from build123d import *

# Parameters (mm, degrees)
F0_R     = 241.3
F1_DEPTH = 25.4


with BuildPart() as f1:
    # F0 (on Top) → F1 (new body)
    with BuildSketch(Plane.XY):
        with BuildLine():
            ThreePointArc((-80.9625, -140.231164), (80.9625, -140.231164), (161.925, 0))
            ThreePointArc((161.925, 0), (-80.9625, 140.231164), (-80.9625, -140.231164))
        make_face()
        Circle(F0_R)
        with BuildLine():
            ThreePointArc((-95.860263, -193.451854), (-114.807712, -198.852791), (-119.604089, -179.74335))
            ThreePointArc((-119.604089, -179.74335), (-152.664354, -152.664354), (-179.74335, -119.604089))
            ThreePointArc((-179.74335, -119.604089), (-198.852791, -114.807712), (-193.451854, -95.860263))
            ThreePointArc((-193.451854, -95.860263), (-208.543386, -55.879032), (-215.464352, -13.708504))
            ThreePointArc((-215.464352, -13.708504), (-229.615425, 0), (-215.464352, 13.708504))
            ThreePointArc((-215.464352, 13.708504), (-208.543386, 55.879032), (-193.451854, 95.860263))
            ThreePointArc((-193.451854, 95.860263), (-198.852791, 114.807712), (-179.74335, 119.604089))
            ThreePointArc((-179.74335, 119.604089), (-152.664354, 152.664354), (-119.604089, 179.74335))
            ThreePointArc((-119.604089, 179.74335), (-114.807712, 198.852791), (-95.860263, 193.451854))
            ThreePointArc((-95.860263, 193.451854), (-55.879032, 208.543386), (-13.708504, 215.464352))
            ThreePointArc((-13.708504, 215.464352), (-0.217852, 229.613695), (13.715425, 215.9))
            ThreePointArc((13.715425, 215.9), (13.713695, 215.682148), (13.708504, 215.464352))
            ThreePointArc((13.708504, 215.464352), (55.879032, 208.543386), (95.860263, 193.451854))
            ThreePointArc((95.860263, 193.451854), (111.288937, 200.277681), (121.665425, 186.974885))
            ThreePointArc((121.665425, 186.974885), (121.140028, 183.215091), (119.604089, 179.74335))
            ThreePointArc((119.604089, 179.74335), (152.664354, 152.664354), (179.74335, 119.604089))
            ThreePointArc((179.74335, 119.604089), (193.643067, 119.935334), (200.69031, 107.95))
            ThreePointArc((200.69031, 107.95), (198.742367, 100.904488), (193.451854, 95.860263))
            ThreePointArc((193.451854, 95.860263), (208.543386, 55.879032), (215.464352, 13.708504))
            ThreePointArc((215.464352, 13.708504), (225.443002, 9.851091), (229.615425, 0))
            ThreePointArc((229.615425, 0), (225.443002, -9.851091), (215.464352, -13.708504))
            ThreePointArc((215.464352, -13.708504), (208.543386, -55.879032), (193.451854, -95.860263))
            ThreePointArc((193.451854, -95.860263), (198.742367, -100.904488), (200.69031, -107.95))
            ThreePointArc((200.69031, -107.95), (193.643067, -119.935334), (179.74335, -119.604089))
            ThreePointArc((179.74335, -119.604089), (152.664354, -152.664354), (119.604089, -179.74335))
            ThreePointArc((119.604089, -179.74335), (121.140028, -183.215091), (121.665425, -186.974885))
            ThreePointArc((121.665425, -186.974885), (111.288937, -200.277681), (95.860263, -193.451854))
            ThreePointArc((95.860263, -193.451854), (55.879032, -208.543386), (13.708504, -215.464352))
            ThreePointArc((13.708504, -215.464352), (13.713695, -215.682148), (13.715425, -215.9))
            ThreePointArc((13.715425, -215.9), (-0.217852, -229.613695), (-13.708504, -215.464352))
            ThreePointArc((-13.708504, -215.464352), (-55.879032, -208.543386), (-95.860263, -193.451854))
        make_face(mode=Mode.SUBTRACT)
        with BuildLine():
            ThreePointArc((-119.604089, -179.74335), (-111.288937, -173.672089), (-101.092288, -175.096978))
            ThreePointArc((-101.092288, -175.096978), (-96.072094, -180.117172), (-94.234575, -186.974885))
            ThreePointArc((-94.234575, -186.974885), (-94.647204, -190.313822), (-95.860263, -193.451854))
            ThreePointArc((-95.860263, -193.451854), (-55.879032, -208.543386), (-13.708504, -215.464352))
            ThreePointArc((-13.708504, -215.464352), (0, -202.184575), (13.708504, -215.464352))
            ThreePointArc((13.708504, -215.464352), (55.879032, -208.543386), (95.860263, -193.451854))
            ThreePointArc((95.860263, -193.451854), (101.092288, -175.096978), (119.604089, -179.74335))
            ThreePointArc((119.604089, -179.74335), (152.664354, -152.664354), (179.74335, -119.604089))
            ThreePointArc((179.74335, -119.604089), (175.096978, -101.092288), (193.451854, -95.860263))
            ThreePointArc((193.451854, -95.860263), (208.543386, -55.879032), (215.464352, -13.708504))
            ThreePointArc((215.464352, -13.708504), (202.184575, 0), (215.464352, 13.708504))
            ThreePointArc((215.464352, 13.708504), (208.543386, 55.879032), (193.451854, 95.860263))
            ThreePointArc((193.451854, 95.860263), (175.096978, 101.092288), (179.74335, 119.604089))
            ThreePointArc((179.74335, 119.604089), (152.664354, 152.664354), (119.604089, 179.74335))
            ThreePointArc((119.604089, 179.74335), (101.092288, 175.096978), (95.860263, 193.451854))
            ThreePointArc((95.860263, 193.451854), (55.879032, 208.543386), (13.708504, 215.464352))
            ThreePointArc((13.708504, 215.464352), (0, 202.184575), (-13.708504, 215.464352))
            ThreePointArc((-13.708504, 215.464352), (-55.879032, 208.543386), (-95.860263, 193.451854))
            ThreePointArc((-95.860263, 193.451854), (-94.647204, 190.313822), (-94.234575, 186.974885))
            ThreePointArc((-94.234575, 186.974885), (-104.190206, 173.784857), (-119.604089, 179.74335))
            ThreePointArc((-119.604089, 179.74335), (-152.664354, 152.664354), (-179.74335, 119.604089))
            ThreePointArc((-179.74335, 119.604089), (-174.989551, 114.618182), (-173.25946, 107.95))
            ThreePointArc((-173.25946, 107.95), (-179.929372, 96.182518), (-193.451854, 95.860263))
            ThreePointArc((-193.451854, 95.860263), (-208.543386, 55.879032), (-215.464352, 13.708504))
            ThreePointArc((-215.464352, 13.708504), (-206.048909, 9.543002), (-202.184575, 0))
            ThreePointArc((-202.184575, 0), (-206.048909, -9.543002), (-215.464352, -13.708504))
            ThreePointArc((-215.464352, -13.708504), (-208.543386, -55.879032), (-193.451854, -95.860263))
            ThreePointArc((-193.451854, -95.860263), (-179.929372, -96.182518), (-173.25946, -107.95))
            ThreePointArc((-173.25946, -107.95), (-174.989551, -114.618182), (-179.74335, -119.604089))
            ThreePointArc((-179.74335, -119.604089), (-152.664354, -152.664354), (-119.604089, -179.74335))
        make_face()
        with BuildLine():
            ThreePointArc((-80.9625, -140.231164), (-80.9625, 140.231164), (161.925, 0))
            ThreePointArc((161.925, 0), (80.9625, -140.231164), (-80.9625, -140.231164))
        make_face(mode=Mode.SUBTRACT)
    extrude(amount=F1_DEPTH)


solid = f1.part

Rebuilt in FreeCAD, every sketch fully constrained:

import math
import FreeCAD as App
import Part
import Sketcher

V = App.Vector
Q = App.Units.Quantity

doc = App.newDocument("Part")
body = doc.addObject("PartDesign::Body", "Body")

sketch1 = body.newObject("Sketcher::SketchObject", "Sketch")
sketch1.AttachmentSupport = (doc.getObject("XY_Plane"), [""])
sketch1.MapMode = "FlatFace"
sketch1.addGeometry([
    Part.Circle(V(0, 0, 0), V(0, 0, 1), 241.3),
    Part.ArcOfCircle(Part.Circle(V(-107.95, -186.97, 0), V(0, 0, 1), 13.72), math.radians(148), math.radians(332)),
    Part.ArcOfCircle(Part.Circle(V(-107.95, -186.97, 0), V(0, 0, 1), 13.72), math.radians(60), math.radians(148)),
    Part.ArcOfCircle(Part.Circle(V(-107.95, -186.97, 0), V(0, 0, 1), 13.72), math.radians(0), math.radians(60)),
    Part.ArcOfCircle(Part.Circle(V(-107.95, -186.97, 0), V(0, 0, 1), 13.72), math.radians(-28), math.radians(0)),
    Part.ArcOfCircle(Part.Circle(V(-186.97, -107.95, 0), V(0, 0, 1), 13.72), math.radians(118), math.radians(302)),
    Part.ArcOfCircle(Part.Circle(V(-186.97, -107.95, 0), V(0, 0, 1), 13.72), math.radians(0), math.radians(118)),
    Part.ArcOfCircle(Part.Circle(V(-186.97, -107.95, 0), V(0, 0, 1), 13.72), math.radians(-58), math.radians(0)),
    Part.ArcOfCircle(Part.Circle(V(0, 0, 0), V(0, 0, 1), 161.93), math.radians(-120), math.radians(0)),
    Part.ArcOfCircle(Part.Circle(V(0, 0, 0), V(0, 0, 1), 161.93), math.radians(0), math.radians(240)),
    Part.ArcOfCircle(Part.Circle(V(0, -215.9, 0), V(0, 0, 1), 13.72), math.radians(178), math.radians(360)),
    Part.ArcOfCircle(Part.Circle(V(0, -215.9, 0), V(0, 0, 1), 13.72), math.radians(2), math.radians(178)),
    Part.ArcOfCircle(Part.Circle(V(0, -215.9, 0), V(0, 0, 1), 13.71), math.radians(0), math.radians(1.82)),
    Part.ArcOfCircle(Part.Circle(V(107.95, -186.97, 0), V(0, 0, 1), 13.72), math.radians(-152), math.radians(0)),
    Part.ArcOfCircle(Part.Circle(V(107.95, -186.97, 0), V(0, 0, 1), 13.72), math.radians(32), math.radians(208)),
    Part.ArcOfCircle(Part.Circle(V(107.95, -186.97, 0), V(0, 0, 1), 13.72), math.radians(0), math.radians(32)),
    Part.ArcOfCircle(Part.Circle(V(186.97, -107.95, 0), V(0, 0, 1), 13.72), math.radians(-122), math.radians(0)),
    Part.ArcOfCircle(Part.Circle(V(186.97, -107.95, 0), V(0, 0, 1), 13.72), math.radians(62), math.radians(238)),
    Part.ArcOfCircle(Part.Circle(V(186.97, -107.95, 0), V(0, 0, 1), 13.72), math.radians(0), math.radians(62)),
    Part.ArcOfCircle(Part.Circle(V(-215.9, 0, 0), V(0, 0, 1), 13.72), math.radians(88), math.radians(272)),
    Part.ArcOfCircle(Part.Circle(V(-215.9, 0, 0), V(0, 0, 1), 13.72), math.radians(0), math.radians(88)),
    Part.ArcOfCircle(Part.Circle(V(-215.9, 0, 0), V(0, 0, 1), 13.72), math.radians(-88), math.radians(0)),
    Part.ArcOfCircle(Part.Circle(V(-186.97, 107.95, 0), V(0, 0, 1), 13.72), math.radians(58), math.radians(242)),
    Part.ArcOfCircle(Part.Circle(V(-186.97, 107.95, 0), V(0, 0, 1), 13.72), math.radians(0), math.radians(58)),
    Part.ArcOfCircle(Part.Circle(V(-186.97, 107.95, 0), V(0, 0, 1), 13.72), math.radians(-118), math.radians(0)),
    Part.ArcOfCircle(Part.Circle(V(-107.95, 186.97, 0), V(0, 0, 1), 13.72), math.radians(28), math.radians(212)),
    Part.ArcOfCircle(Part.Circle(V(-107.95, 186.97, 0), V(0, 0, 1), 13.72), math.radians(0), math.radians(28)),
    Part.ArcOfCircle(Part.Circle(V(-107.95, 186.97, 0), V(0, 0, 1), 13.72), math.radians(-148), math.radians(0)),
    Part.ArcOfCircle(Part.Circle(V(215.9, 0, 0), V(0, 0, 1), 13.72), math.radians(-92), math.radians(0)),
    Part.ArcOfCircle(Part.Circle(V(215.9, 0, 0), V(0, 0, 1), 13.72), math.radians(92), math.radians(268)),
    Part.ArcOfCircle(Part.Circle(V(215.9, 0, 0), V(0, 0, 1), 13.72), math.radians(0), math.radians(92)),
    Part.ArcOfCircle(Part.Circle(V(186.97, 107.95, 0), V(0, 0, 1), 13.72), math.radians(-62), math.radians(0)),
    Part.ArcOfCircle(Part.Circle(V(186.97, 107.95, 0), V(0, 0, 1), 13.72), math.radians(122), math.radians(298)),
    Part.ArcOfCircle(Part.Circle(V(186.97, 107.95, 0), V(0, 0, 1), 13.72), math.radians(0), math.radians(122)),
    Part.ArcOfCircle(Part.Circle(V(0, 215.9, 0), V(0, 0, 1), 13.71), math.radians(-1.82), math.radians(0)),
    Part.ArcOfCircle(Part.Circle(V(0, 215.9, 0), V(0, 0, 1), 13.72), math.radians(-178), math.radians(-2)),
    Part.ArcOfCircle(Part.Circle(V(0, 215.9, 0), V(0, 0, 1), 13.72), math.radians(0), math.radians(182)),
    Part.ArcOfCircle(Part.Circle(V(107.95, 186.97, 0), V(0, 0, 1), 13.72), math.radians(-32), math.radians(0)),
    Part.ArcOfCircle(Part.Circle(V(107.95, 186.97, 0), V(0, 0, 1), 13.72), math.radians(152), math.radians(328)),
    Part.ArcOfCircle(Part.Circle(V(107.95, 186.97, 0), V(0, 0, 1), 13.72), math.radians(0), math.radians(152)),
], False)
sketch1.addConstraint([
    Sketcher.Constraint("Tangent", 1, 1, 2, 2),
    Sketcher.Constraint("Tangent", 2, 1, 3, 2),
    Sketcher.Constraint("Tangent", 3, 1, 4, 2),
    Sketcher.Constraint("Tangent", 4, 1, 1, 2),
    Sketcher.Constraint("Tangent", 5, 1, 6, 2),
    Sketcher.Constraint("Tangent", 6, 1, 7, 2),
    Sketcher.Constraint("Tangent", 7, 1, 5, 2),
    Sketcher.Constraint("Tangent", 8, 1, 9, 2),
    Sketcher.Constraint("Coincident", 9, 1, 8, 2),
    Sketcher.Constraint("Tangent", 10, 1, 11, 2),
    Sketcher.Constraint("Coincident", 11, 1, 12, 2),
    Sketcher.Constraint("Coincident", 12, 1, 10, 2),
    Sketcher.Constraint("Tangent", 13, 1, 14, 2),
    Sketcher.Constraint("Tangent", 14, 1, 15, 2),
    Sketcher.Constraint("Tangent", 15, 1, 13, 2),
    Sketcher.Constraint("Tangent", 16, 1, 17, 2),
    Sketcher.Constraint("Tangent", 17, 1, 18, 2),
    Sketcher.Constraint("Tangent", 18, 1, 16, 2),
    Sketcher.Constraint("Tangent", 19, 1, 20, 2),
    Sketcher.Constraint("Tangent", 20, 1, 21, 2),
    Sketcher.Constraint("Tangent", 21, 1, 19, 2),
    Sketcher.Constraint("Tangent", 22, 1, 23, 2),
    Sketcher.Constraint("Tangent", 23, 1, 24, 2),
    Sketcher.Constraint("Tangent", 24, 1, 22, 2),
    Sketcher.Constraint("Tangent", 25, 1, 26, 2),
    Sketcher.Constraint("Tangent", 26, 1, 27, 2),
    Sketcher.Constraint("Tangent", 27, 1, 25, 2),
    Sketcher.Constraint("Tangent", 28, 1, 29, 2),
    Sketcher.Constraint("Tangent", 29, 1, 30, 2),
    Sketcher.Constraint("Tangent", 30, 1, 28, 2),
    Sketcher.Constraint("Tangent", 31, 1, 32, 2),
    Sketcher.Constraint("Tangent", 32, 1, 33, 2),
    Sketcher.Constraint("Tangent", 33, 1, 31, 2),
    Sketcher.Constraint("Coincident", 34, 1, 35, 2),
    Sketcher.Constraint("Tangent", 35, 1, 36, 2),
    Sketcher.Constraint("Coincident", 36, 1, 34, 2),
    Sketcher.Constraint("Tangent", 37, 1, 38, 2),
    Sketcher.Constraint("Tangent", 38, 1, 39, 2),
    Sketcher.Constraint("Tangent", 39, 1, 37, 2),
    Sketcher.Constraint("Coincident", 0, 3, -1, 1),
    Sketcher.Constraint("Coincident", 8, 3, -1, 1),
    Sketcher.Constraint("Equal", 1, 2),
    Sketcher.Constraint("Equal", 3, 5),
    Sketcher.Constraint("Equal", 7, 10),
    Sketcher.Constraint("Equal", 10, 11),
    Sketcher.Constraint("Equal", 11, 13),
    Sketcher.Constraint("Equal", 14, 16),
    Sketcher.Constraint("Equal", 18, 19),
    Sketcher.Constraint("Equal", 21, 22),
    Sketcher.Constraint("Equal", 24, 25),
    Sketcher.Constraint("Equal", 27, 28),
    Sketcher.Constraint("Equal", 30, 31),
    Sketcher.Constraint("Equal", 12, 34),
    Sketcher.Constraint("Equal", 33, 35),
    Sketcher.Constraint("Equal", 35, 36),
    Sketcher.Constraint("Equal", 15, 37),
    Sketcher.Constraint("Symmetric", 16, 3, 22, 3, -1, 1),
    Sketcher.Constraint("Symmetric", 13, 3, 25, 3, -1, 1),
    Sketcher.Constraint("Symmetric", 19, 3, 28, 3, -1, 1),
    Sketcher.Constraint("Symmetric", 5, 3, 31, 3, -1, 1),
    Sketcher.Constraint("Symmetric", 10, 3, 35, 3, -1, 1),
    Sketcher.Constraint("Symmetric", 1, 3, 37, 3, -1, 1),
    Sketcher.Constraint("Symmetric", 1, 3, 13, 3, -2),
    Sketcher.Constraint("Symmetric", 5, 3, 16, 3, -2),
    Sketcher.Constraint("Symmetric", 10, 1, 11, 1, -2),
    Sketcher.Constraint("Symmetric", 21, 1, 28, 1, -2),
    Sketcher.Constraint("PointOnObject", 9, 1, -1),
    Sketcher.Constraint("PointOnObject", 20, 1, -1),
    Sketcher.Constraint("PointOnObject", 30, 1, -1),
    Sketcher.Constraint("Horizontal", 15, 3, 3, 1),
    Sketcher.Constraint("Horizontal", 18, 3, 6, 1),
    Sketcher.Constraint("Horizontal", 11, 3, 12, 1),
    Sketcher.Constraint("Horizontal", 4, 1, 13, 1),
    Sketcher.Constraint("Horizontal", 1, 1, 14, 1),
    Sketcher.Constraint("Horizontal", 3, 1, 15, 1),
    Sketcher.Constraint("Horizontal", 7, 1, 16, 1),
    Sketcher.Constraint("Horizontal", 5, 1, 17, 1),
    Sketcher.Constraint("Horizontal", 6, 1, 18, 1),
    Sketcher.Constraint("Horizontal", 33, 3, 23, 1),
    Sketcher.Constraint("Horizontal", 39, 3, 26, 1),
    Sketcher.Constraint("Horizontal", 19, 1, 29, 1),
    Sketcher.Constraint("Horizontal", 24, 1, 31, 1),
    Sketcher.Constraint("Horizontal", 22, 1, 32, 1),
    Sketcher.Constraint("Horizontal", 23, 1, 33, 1),
    Sketcher.Constraint("Horizontal", 34, 1, 35, 1),
    Sketcher.Constraint("Horizontal", 35, 3, 36, 1),
    Sketcher.Constraint("Horizontal", 27, 1, 37, 1),
    Sketcher.Constraint("Horizontal", 25, 1, 38, 1),
    Sketcher.Constraint("Horizontal", 26, 1, 39, 1),
    Sketcher.Constraint("Vertical", 19, 1, 21, 1),
    Sketcher.Constraint("Vertical", 7, 1, 22, 1),
    Sketcher.Constraint("Vertical", 5, 1, 24, 1),
    Sketcher.Constraint("Vertical", 4, 1, 25, 1),
    Sketcher.Constraint("Vertical", 1, 1, 27, 1),
    Sketcher.Constraint("Vertical", 11, 1, 34, 1),
    Sketcher.Constraint("Diameter", 0, Q("19 in")),
    Sketcher.Constraint("Radius", 8, Q("6.375 in")),
    Sketcher.Constraint("DistanceY", 10, 3, -1, 1, Q("8.5 in")),
    Sketcher.Constraint("DistanceX", 19, 3, -1, 1, Q("8.5 in")),
    Sketcher.Constraint("DistanceX", 1, 3, -1, 1, Q("4.25 in")),
    Sketcher.Constraint("DistanceY", 5, 3, -1, 1, Q("4.25 in")),
    Sketcher.Constraint("DistanceX", 8, 1, -1, 1, Q("3.1875 in")),
    Sketcher.Constraint("Radius", 12, Q("13.71166 mm")),
    Sketcher.Constraint("Radius", 15, Q("13.715422 mm")),
    Sketcher.Constraint("DistanceX", 1, 1, -1, 1, Q("119.604089 mm")),
    Sketcher.Constraint("DistanceY", 1, 1, -1, 1, Q("179.74335 mm")),
    Sketcher.Constraint("DistanceX", 2, 1, -1, 1, Q("101.092288 mm")),
    Sketcher.Constraint("DistanceX", 6, 1, -1, 1, Q("173.25946 mm")),
    Sketcher.Constraint("DistanceX", 7, 1, -1, 1, Q("179.74335 mm")),
    Sketcher.Constraint("DistanceY", 10, 1, -1, 1, Q("215.464352 mm")),
    Sketcher.Constraint("DistanceX", 19, 1, -1, 1, Q("215.464352 mm")),
    Sketcher.Constraint("DistanceX", 4, 1, -1, 1, Q("95.860263 mm")),
    Sketcher.Constraint("DistanceX", 5, 1, -1, 1, Q("193.451854 mm")),
])
pad1 = body.newObject("PartDesign::Pad", "Pad")
pad1.Profile = sketch1
pad1.Length = Q("1 in")

doc.recompute()
